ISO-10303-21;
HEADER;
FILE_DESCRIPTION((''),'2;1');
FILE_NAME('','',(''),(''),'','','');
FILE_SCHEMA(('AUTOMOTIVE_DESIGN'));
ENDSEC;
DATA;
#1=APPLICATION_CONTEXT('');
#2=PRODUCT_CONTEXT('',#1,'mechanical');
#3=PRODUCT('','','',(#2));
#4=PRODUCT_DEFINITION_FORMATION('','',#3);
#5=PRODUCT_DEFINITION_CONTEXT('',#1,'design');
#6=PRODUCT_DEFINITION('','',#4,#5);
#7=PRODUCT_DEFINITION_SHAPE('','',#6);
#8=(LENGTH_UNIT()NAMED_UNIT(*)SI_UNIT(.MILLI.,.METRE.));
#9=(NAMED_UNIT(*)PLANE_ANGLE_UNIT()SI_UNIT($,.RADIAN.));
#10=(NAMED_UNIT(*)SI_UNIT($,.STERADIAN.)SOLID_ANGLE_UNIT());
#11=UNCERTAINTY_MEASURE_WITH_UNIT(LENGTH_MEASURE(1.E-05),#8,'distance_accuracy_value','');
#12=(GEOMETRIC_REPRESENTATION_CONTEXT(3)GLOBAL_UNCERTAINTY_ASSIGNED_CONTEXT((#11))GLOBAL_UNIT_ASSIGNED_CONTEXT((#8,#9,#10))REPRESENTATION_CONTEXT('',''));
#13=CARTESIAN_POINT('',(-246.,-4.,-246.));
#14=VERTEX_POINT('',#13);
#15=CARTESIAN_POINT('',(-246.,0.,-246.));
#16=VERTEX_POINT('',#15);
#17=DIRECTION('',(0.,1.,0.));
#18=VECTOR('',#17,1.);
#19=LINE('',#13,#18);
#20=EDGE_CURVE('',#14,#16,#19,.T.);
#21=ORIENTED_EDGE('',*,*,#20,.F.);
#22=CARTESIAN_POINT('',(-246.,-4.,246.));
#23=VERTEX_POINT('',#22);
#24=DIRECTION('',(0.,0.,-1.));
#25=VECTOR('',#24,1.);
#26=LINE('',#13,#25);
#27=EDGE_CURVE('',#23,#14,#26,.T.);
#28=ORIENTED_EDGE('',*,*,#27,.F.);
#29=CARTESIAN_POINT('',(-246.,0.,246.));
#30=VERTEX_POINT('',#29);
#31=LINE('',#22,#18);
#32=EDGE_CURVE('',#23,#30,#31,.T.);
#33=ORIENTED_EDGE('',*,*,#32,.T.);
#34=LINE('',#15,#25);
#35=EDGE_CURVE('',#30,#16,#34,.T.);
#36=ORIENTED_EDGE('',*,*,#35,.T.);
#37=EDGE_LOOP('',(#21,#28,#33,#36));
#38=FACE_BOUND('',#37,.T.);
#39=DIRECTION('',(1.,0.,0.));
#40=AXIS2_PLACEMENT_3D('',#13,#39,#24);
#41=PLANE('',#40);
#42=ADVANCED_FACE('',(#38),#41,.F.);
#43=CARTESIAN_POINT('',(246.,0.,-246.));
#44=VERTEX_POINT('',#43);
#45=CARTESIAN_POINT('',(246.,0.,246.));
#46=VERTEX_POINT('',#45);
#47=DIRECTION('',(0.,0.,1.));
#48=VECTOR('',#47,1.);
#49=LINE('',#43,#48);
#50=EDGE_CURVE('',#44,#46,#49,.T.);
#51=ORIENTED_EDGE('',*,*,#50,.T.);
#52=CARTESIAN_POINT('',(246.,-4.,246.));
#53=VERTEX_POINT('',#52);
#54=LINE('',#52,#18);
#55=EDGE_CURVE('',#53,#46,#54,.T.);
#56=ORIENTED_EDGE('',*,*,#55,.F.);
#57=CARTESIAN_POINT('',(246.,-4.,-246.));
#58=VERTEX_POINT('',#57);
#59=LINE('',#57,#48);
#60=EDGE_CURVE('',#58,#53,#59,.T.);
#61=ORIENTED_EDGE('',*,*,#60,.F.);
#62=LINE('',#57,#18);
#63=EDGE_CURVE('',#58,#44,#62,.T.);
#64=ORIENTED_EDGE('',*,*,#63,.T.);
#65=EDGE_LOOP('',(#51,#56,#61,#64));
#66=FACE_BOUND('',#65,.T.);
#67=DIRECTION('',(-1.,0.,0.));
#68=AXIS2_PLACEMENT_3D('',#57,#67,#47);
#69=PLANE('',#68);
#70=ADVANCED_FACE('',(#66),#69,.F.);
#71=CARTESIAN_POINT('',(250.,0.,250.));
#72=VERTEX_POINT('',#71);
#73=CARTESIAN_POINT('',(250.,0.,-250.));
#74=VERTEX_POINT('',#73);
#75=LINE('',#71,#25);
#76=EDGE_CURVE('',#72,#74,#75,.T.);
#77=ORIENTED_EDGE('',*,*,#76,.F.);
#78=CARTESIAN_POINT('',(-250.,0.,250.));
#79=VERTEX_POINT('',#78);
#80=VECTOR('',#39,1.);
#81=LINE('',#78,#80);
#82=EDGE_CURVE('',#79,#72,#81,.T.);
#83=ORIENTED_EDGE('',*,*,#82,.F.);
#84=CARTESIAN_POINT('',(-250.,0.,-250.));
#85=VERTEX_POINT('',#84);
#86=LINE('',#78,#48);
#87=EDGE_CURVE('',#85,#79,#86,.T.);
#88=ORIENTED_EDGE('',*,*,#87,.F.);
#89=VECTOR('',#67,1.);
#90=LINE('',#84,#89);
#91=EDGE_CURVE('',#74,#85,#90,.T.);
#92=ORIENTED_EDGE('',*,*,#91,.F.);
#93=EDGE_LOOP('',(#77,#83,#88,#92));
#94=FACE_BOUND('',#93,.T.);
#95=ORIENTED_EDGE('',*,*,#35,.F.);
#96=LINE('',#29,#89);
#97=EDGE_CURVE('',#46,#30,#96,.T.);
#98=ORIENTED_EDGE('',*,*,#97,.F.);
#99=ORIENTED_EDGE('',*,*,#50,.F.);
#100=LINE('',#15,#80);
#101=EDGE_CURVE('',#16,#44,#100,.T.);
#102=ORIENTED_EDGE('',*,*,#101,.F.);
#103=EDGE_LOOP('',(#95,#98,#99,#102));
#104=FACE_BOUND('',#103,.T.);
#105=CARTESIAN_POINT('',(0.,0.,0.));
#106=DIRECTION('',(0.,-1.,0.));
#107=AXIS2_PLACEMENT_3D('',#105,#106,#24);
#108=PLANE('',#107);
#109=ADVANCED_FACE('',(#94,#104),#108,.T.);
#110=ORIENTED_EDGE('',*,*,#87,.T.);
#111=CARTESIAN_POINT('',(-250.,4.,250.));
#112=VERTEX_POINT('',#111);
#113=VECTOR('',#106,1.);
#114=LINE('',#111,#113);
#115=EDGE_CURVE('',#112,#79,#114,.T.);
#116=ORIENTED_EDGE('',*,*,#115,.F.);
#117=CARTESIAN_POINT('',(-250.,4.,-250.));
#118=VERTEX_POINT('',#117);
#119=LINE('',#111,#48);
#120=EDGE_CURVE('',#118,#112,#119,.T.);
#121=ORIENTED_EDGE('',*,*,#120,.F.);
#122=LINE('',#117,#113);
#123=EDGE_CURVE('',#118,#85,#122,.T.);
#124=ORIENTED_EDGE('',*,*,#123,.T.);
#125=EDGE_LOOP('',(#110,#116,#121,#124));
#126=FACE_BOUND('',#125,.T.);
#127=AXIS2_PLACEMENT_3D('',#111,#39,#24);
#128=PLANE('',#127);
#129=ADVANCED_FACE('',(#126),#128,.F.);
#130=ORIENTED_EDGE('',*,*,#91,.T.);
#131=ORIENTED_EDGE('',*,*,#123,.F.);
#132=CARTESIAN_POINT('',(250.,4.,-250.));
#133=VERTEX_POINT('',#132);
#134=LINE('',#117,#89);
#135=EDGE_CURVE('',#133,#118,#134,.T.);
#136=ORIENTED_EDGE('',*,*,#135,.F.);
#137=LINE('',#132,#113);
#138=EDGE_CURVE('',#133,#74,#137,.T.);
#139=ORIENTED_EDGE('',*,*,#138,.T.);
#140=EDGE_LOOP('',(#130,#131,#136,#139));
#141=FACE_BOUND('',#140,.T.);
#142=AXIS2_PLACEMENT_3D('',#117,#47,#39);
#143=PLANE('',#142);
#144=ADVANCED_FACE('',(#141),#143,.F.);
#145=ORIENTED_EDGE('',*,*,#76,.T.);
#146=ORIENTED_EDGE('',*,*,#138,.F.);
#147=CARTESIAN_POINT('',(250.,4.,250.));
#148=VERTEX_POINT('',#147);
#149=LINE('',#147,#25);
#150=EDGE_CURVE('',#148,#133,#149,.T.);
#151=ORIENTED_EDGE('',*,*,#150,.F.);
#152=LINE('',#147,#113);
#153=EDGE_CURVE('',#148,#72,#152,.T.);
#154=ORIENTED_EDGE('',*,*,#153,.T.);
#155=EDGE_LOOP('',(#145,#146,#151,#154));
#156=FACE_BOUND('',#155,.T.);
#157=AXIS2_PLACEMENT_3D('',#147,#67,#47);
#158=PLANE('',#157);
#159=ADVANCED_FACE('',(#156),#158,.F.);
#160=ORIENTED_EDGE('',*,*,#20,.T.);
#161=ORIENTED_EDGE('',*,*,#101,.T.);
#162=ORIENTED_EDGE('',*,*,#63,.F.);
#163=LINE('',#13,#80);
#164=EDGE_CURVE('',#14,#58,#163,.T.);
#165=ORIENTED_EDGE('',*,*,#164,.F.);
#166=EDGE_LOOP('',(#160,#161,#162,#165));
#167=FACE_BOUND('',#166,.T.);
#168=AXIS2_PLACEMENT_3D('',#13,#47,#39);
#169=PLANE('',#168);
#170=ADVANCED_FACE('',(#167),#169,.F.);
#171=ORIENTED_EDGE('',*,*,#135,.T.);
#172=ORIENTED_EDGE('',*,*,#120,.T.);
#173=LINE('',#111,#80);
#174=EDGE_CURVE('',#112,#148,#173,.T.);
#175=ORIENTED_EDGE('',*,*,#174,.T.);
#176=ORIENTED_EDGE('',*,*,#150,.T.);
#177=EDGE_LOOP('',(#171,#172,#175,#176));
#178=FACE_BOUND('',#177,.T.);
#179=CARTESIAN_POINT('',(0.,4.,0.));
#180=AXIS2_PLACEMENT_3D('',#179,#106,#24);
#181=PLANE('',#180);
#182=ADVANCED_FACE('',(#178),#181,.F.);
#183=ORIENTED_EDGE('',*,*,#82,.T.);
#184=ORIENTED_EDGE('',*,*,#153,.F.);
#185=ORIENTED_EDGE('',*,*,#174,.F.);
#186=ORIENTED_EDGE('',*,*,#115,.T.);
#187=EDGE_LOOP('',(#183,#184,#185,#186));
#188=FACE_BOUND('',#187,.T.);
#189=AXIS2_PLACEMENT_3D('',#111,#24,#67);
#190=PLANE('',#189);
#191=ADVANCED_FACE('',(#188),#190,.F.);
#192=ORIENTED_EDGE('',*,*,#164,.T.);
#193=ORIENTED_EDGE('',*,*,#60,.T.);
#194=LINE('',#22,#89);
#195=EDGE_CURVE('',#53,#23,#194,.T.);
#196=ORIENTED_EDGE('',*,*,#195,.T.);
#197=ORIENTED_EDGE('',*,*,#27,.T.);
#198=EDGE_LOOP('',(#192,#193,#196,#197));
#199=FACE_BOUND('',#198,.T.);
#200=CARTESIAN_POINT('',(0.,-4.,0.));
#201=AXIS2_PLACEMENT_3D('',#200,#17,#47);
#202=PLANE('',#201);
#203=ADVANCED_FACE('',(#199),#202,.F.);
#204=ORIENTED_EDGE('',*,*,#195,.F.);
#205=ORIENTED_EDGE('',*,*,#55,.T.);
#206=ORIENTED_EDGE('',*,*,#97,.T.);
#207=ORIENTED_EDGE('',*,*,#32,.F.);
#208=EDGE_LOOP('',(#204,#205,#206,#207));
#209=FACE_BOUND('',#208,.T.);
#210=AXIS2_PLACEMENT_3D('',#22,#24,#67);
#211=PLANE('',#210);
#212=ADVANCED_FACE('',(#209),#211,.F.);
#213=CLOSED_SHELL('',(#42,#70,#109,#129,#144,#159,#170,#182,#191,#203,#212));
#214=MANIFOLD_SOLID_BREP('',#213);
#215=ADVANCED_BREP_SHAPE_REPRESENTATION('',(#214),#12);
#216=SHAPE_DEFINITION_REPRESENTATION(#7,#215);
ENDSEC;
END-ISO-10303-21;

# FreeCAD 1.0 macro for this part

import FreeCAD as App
import Part
import Sketcher
Q = App.Units.Quantity


def add_polygon(sketch, points):
    """Adds a closed chain of lines whose ends are joined by coincident constraints."""
    first, n = sketch.GeometryCount, len(points)
    for a, b in zip(points, points[1:] + points[:1]):
        sketch.addGeometry(Part.LineSegment(App.Vector(*a, 0), App.Vector(*b, 0)), False)
    for i in range(n):
        sketch.addConstraint(Sketcher.Constraint("Coincident", first + i, 2, first + (i + 1) % n, 1))

doc = App.newDocument("Part")
body = doc.addObject("PartDesign::Body", "Body")

# Sketch on XZ plane
sketch1 = body.newObject("Sketcher::SketchObject", "Sketch")
sketch1.AttachmentSupport = (doc.getObject("XZ_Plane"), [""])
sketch1.MapMode = "FlatFace"
add_polygon(sketch1, [(-250, -250), (-250, 250), (250, 250), (250, -250)])  # lines 0-3
sketch1.addConstraint(Sketcher.Constraint("Vertical", 0))
sketch1.addConstraint(Sketcher.Constraint("Horizontal", 1))
sketch1.addConstraint(Sketcher.Constraint("Vertical", 2))
sketch1.addConstraint(Sketcher.Constraint("Horizontal", 3))
sketch1.addConstraint(Sketcher.Constraint("Symmetric", 0, 2, 2, 2, -1, 1))
sketch1.addConstraint(Sketcher.Constraint("Equal", 3, 0))
sketch1.addConstraint(Sketcher.Constraint("DistanceX", 1, 1, 1, 2, Q("500 mm")))
pad1 = body.newObject("PartDesign::Pad", "Pad")
pad1.Profile = sketch1
pad1.Length = 4
pad1.Reversed = True

# Sketch on XZ plane
sketch2 = body.newObject("Sketcher::SketchObject", "Sketch001")
sketch2.AttachmentSupport = (doc.getObject("XZ_Plane"), [""])
sketch2.MapMode = "FlatFace"
add_polygon(sketch2, [(246, -246), (246, 246), (-246, 246), (-246, -246)])  # lines 0-3
sketch2.addConstraint(Sketcher.Constraint("Vertical", 0))
sketch2.addConstraint(Sketcher.Constraint("Horizontal", 1))
sketch2.addConstraint(Sketcher.Constraint("Vertical", 2))
sketch2.addConstraint(Sketcher.Constraint("Horizontal", 3))
sketch2.addConstraint(Sketcher.Constraint("Symmetric", 0, 2, 2, 2, -1, 1))
sketch2.addConstraint(Sketcher.Constraint("Equal", 3, 0))
sketch2.addConstraint(Sketcher.Constraint("DistanceX", 1, 2, 1, 1, Q("492 mm")))
pad2 = body.newObject("PartDesign::Pad", "Pad001")
pad2.Profile = sketch2
pad2.Length = 4

doc.recompute()
